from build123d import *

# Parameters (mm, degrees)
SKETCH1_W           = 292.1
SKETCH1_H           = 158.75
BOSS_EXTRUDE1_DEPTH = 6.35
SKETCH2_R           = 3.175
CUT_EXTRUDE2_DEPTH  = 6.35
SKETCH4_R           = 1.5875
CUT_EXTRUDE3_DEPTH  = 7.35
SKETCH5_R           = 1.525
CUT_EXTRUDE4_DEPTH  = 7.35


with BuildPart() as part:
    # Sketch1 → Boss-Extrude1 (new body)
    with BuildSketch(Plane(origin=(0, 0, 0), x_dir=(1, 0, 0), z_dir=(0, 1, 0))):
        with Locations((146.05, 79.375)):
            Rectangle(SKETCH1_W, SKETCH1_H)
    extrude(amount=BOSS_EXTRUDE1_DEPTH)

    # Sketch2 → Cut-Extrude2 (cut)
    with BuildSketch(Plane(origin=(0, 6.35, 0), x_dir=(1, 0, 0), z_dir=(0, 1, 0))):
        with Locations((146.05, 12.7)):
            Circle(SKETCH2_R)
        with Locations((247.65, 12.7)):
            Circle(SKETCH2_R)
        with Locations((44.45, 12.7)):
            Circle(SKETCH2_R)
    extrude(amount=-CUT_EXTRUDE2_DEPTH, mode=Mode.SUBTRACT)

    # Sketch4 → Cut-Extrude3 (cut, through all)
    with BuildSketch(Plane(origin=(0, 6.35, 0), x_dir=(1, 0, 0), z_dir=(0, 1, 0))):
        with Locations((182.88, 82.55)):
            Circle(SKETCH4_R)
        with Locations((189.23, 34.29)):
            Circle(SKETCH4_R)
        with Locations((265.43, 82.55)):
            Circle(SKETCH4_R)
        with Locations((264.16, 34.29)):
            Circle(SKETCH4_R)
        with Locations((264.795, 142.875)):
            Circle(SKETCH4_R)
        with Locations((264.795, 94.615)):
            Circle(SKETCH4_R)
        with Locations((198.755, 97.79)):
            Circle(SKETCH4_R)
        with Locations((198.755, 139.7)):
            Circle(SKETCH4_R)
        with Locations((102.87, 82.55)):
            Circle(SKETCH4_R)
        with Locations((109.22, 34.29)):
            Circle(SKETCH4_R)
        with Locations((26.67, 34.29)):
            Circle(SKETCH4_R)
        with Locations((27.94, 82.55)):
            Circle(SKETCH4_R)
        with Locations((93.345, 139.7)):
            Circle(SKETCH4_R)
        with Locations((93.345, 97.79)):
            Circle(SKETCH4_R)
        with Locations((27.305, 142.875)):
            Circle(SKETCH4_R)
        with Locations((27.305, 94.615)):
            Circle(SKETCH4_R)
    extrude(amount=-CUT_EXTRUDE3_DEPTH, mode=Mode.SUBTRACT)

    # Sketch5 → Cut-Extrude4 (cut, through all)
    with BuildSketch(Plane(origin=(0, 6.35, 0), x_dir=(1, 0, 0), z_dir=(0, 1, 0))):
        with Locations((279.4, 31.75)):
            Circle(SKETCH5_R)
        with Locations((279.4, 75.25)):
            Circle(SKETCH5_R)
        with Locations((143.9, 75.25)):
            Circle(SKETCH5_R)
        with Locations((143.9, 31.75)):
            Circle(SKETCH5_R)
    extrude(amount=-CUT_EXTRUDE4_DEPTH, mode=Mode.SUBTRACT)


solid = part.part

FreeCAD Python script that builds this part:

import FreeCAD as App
import Part
import Sketcher
from FreeCAD import Vector
Q = App.Units.Quantity

doc = App.newDocument("Part")
body = doc.addObject("PartDesign::Body", "Body")

# Sketch on XZ plane
sketch1 = doc.addObject("Sketcher::SketchObject", "Sketch")
body.addObject(sketch1)
sketch1.AttachmentSupport = (doc.XZ_Plane, [""])
sketch1.MapMode = "FlatFace"
sketch1.addGeometry(Part.LineSegment(Vector(0, -158.75, 0), Vector(0, 0, 0)), False)
sketch1.addGeometry(Part.LineSegment(Vector(0, 0, 0), Vector(292.1, 0, 0)), False)
sketch1.addGeometry(Part.LineSegment(Vector(292.1, 0, 0), Vector(292.1, -158.75, 0)), False)
sketch1.addGeometry(Part.LineSegment(Vector(292.1, -158.75, 0), Vector(0, -158.75, 0)), False)
sketch1.addConstraint(Sketcher.Constraint("Coincident", 0, 2, 1, 1))
sketch1.addConstraint(Sketcher.Constraint("Coincident", 1, 2, 2, 1))
sketch1.addConstraint(Sketcher.Constraint("Coincident", 2, 2, 3, 1))
sketch1.addConstraint(Sketcher.Constraint("Coincident", 3, 2, 0, 1))
sketch1.addConstraint(Sketcher.Constraint("Vertical", 0))
sketch1.addConstraint(Sketcher.Constraint("Horizontal", 1))
sketch1.addConstraint(Sketcher.Constraint("Vertical", 2))
sketch1.addConstraint(Sketcher.Constraint("Horizontal", 3))
sketch1.addConstraint(Sketcher.Constraint("Coincident", 0, 2, -1, 1))
sketch1.addConstraint(Sketcher.Constraint("DistanceX", 1, 1, 1, 2, Q("11.5 in")))
sketch1.addConstraint(Sketcher.Constraint("DistanceY", 0, 1, 0, 2, Q("6.25 in")))
pad1 = doc.addObject("PartDesign::Pad", "Pad")
body.addObject(pad1)
pad1.Profile = sketch1
pad1.Length = Q("0.25 in")
pad1.Reversed = True

# Sketch on XZ plane
sketch2 = doc.addObject("Sketcher::SketchObject", "Sketch001")
body.addObject(sketch2)
sketch2.AttachmentSupport = (doc.XZ_Plane, [""])
sketch2.MapMode = "FlatFace"
sketch2.AttachmentOffset = App.Placement(Vector(0, 0, -0.25 * 25.4), App.Rotation())
sketch2.addGeometry(Part.Circle(Vector(146.05, -12.7, 0), Vector(0, 0, 1), 3.175), False)
sketch2.addGeometry(Part.Circle(Vector(247.65, -12.7, 0), Vector(0, 0, 1), 3.175), False)
sketch2.addGeometry(Part.Circle(Vector(44.45, -12.7, 0), Vector(0, 0, 1), 3.175), False)
sketch2.addConstraint(Sketcher.Constraint("Equal", 0, 1))
sketch2.addConstraint(Sketcher.Constraint("Equal", 1, 2))
sketch2.addConstraint(Sketcher.Constraint("Horizontal", 0, 3, 1, 3))
sketch2.addConstraint(Sketcher.Constraint("Horizontal", 1, 3, 2, 3))
sketch2.addConstraint(Sketcher.Constraint("Diameter", 0, Q("0.25 in")))
sketch2.addConstraint(Sketcher.Constraint("DistanceX", 0, 3, 1, 3, Q("4 in")))
sketch2.addConstraint(Sketcher.Constraint("DistanceX", 2, 3, 0, 3, Q("4 in")))
sketch2.addConstraint(Sketcher.Constraint("DistanceY", 0, 3, -1, 1, Q("0.5 in")))
sketch2.addConstraint(Sketcher.Constraint("DistanceX", -1, 1, 0, 3, Q("5.75 in")))
pocket1 = doc.addObject("PartDesign::Pocket", "Pocket")
body.addObject(pocket1)
pocket1.Profile = sketch2
pocket1.Length = Q("0.25 in")
pocket1.Reversed = True

# Sketch on XZ plane
sketch3 = doc.addObject("Sketcher::SketchObject", "Sketch002")
body.addObject(sketch3)
sketch3.AttachmentSupport = (doc.XZ_Plane, [""])
sketch3.MapMode = "FlatFace"
sketch3.AttachmentOffset = App.Placement(Vector(0, 0, -0.25 * 25.4), App.Rotation())
sketch3.addGeometry(Part.Circle(Vector(182.88, -82.55, 0), Vector(0, 0, 1), 1.5875), False)
sketch3.addGeometry(Part.Circle(Vector(189.23, -34.29, 0), Vector(0, 0, 1), 1.5875), False)
sketch3.addGeometry(Part.Circle(Vector(265.43, -82.55, 0), Vector(0, 0, 1), 1.5875), False)
sketch3.addGeometry(Part.Circle(Vector(264.16, -34.29, 0), Vector(0, 0, 1), 1.5875), False)
sketch3.addGeometry(Part.Circle(Vector(264.795, -142.875, 0), Vector(0, 0, 1), 1.5875), False)
sketch3.addGeometry(Part.Circle(Vector(264.795, -94.615, 0), Vector(0, 0, 1), 1.5875), False)
sketch3.addGeometry(Part.Circle(Vector(198.755, -97.79, 0), Vector(0, 0, 1), 1.5875), False)
sketch3.addGeometry(Part.Circle(Vector(198.755, -139.7, 0), Vector(0, 0, 1), 1.5875), False)
sketch3.addGeometry(Part.Circle(Vector(102.87, -82.55, 0), Vector(0, 0, 1), 1.5875), False)
sketch3.addGeometry(Part.Circle(Vector(109.22, -34.29, 0), Vector(0, 0, 1), 1.5875), False)
sketch3.addGeometry(Part.Circle(Vector(26.67, -34.29, 0), Vector(0, 0, 1), 1.5875), False)
sketch3.addGeometry(Part.Circle(Vector(27.94, -82.55, 0), Vector(0, 0, 1), 1.5875), False)
sketch3.addGeometry(Part.Circle(Vector(93.345, -139.7, 0), Vector(0, 0, 1), 1.5875), False)
sketch3.addGeometry(Part.Circle(Vector(93.345, -97.79, 0), Vector(0, 0, 1), 1.5875), False)
sketch3.addGeometry(Part.Circle(Vector(27.305, -142.875, 0), Vector(0, 0, 1), 1.5875), False)
sketch3.addGeometry(Part.Circle(Vector(27.305, -94.615, 0), Vector(0, 0, 1), 1.5875), False)
sketch3.addConstraint(Sketcher.Constraint("Equal", 0, 1))
sketch3.addConstraint(Sketcher.Constraint("Equal", 1, 2))
sketch3.addConstraint(Sketcher.Constraint("Equal", 2, 3))
sketch3.addConstraint(Sketcher.Constraint("Equal", 3, 4))
sketch3.addConstraint(Sketcher.Constraint("Equal", 4, 5))
sketch3.addConstraint(Sketcher.Constraint("Equal", 5, 6))
sketch3.addConstraint(Sketcher.Constraint("Equal", 6, 7))
sketch3.addConstraint(Sketcher.Constraint("Equal", 7, 8))
sketch3.addConstraint(Sketcher.Constraint("Equal", 8, 9))
sketch3.addConstraint(Sketcher.Constraint("Equal", 9, 10))
sketch3.addConstraint(Sketcher.Constraint("Equal", 10, 11))
sketch3.addConstraint(Sketcher.Constraint("Equal", 11, 12))
sketch3.addConstraint(Sketcher.Constraint("Equal", 12, 13))
sketch3.addConstraint(Sketcher.Constraint("Equal", 13, 14))
sketch3.addConstraint(Sketcher.Constraint("Equal", 14, 15))
sketch3.addConstraint(Sketcher.Constraint("Horizontal", 0, 3, 2, 3))
sketch3.addConstraint(Sketcher.Constraint("Horizontal", 1, 3, 3, 3))
sketch3.addConstraint(Sketcher.Constraint("Horizontal", 2, 3, 8, 3))
sketch3.addConstraint(Sketcher.Constraint("Horizontal", 3, 3, 9, 3))
sketch3.addConstraint(Sketcher.Constraint("Horizontal", 9, 3, 10, 3))
sketch3.addConstraint(Sketcher.Constraint("Horizontal", 8, 3, 11, 3))
sketch3.addConstraint(Sketcher.Constraint("Horizontal", 7, 3, 12, 3))
sketch3.addConstraint(Sketcher.Constraint("Horizontal", 6, 3, 13, 3))
sketch3.addConstraint(Sketcher.Constraint("Horizontal", 4, 3, 14, 3))
sketch3.addConstraint(Sketcher.Constraint("Horizontal", 5, 3, 15, 3))
sketch3.addConstraint(Sketcher.Constraint("Vertical", 4, 3, 5, 3))
sketch3.addConstraint(Sketcher.Constraint("Vertical", 6, 3, 7, 3))
sketch3.addConstraint(Sketcher.Constraint("Vertical", 12, 3, 13, 3))
sketch3.addConstraint(Sketcher.Constraint("Vertical", 14, 3, 15, 3))
sketch3.addConstraint(Sketcher.Constraint("Diameter", 0, Q("0.125 in")))
sketch3.addConstraint(Sketcher.Constraint("DistanceX", 1, 3, 2, 3, Q("3 in")))
sketch3.addConstraint(Sketcher.Constraint("DistanceX", 10, 3, 8, 3, Q("3 in")))
sketch3.addConstraint(Sketcher.Constraint("DistanceX", -1, 1, 0, 3, Q("7.2 in")))
sketch3.addConstraint(Sketcher.Constraint("DistanceX", -1, 1, 3, 3, Q("10.4 in")))
sketch3.addConstraint(Sketcher.Constraint("DistanceY", 7, 3, -1, 1, Q("5.5 in")))
sketch3.addConstraint(Sketcher.Constraint("DistanceX", -1, 1, 9, 3, Q("4.3 in")))
sketch3.addConstraint(Sketcher.Constraint("DistanceX", -1, 1, 11, 3, Q("1.1 in")))
sketch3.addConstraint(Sketcher.Constraint("DistanceY", 0, 3, 1, 3, Q("1.9 in")))
sketch3.addConstraint(Sketcher.Constraint("DistanceY", 4, 3, 5, 3, Q("1.9 in")))
sketch3.addConstraint(Sketcher.Constraint("DistanceY", 6, 3, 0, 3, Q("0.6 in")))
sketch3.addConstraint(Sketcher.Constraint("DistanceX", 6, 3, 5, 3, Q("2.6 in")))
sketch3.addConstraint(Sketcher.Constraint("DistanceX", 8, 3, 1, 3, Q("3.4 in")))
sketch3.addConstraint(Sketcher.Constraint("DistanceX", 14, 3, 12, 3, Q("2.6 in")))
sketch3.addConstraint(Sketcher.Constraint("DistanceY", 0, 3, -1, 1, Q("3.25 in")))
sketch3.addConstraint(Sketcher.Constraint("DistanceX", -1, 1, 1, 3, Q("7.45 in")))
sketch3.addConstraint(Sketcher.Constraint("DistanceX", 12, 3, 7, 3, Q("4.15 in")))
sketch3.addConstraint(Sketcher.Constraint("DistanceX", -1, 1, 4, 3, Q("10.425 in")))
sketch3.addConstraint(Sketcher.Constraint("DistanceY", 4, 3, -1, 1, Q("5.625 in")))
pocket2 = doc.addObject("PartDesign::Pocket", "Pocket001")
body.addObject(pocket2)
pocket2.Profile = sketch3
pocket2.Type = "ThroughAll"
pocket2.Reversed = True

# Sketch on XZ plane
sketch4 = doc.addObject("Sketcher::SketchObject", "Sketch003")
body.addObject(sketch4)
sketch4.AttachmentSupport = (doc.XZ_Plane, [""])
sketch4.MapMode = "FlatFace"
sketch4.AttachmentOffset = App.Placement(Vector(0, 0, -0.25 * 25.4), App.Rotation())
sketch4.addGeometry(Part.Circle(Vector(279.4, -31.75, 0), Vector(0, 0, 1), 1.525), False)
sketch4.addGeometry(Part.Circle(Vector(279.4, -75.25, 0), Vector(0, 0, 1), 1.525), False)
sketch4.addGeometry(Part.Circle(Vector(143.9, -75.25, 0), Vector(0, 0, 1), 1.525), False)
sketch4.addGeometry(Part.Circle(Vector(143.9, -31.75, 0), Vector(0, 0, 1), 1.525), False)
sketch4.addConstraint(Sketcher.Constraint("Equal", 0, 1))
sketch4.addConstraint(Sketcher.Constraint("Equal", 1, 2))
sketch4.addConstraint(Sketcher.Constraint("Equal", 2, 3))
sketch4.addConstraint(Sketcher.Constraint("Horizontal", 1, 3, 2, 3))
sketch4.addConstraint(Sketcher.Constraint("Horizontal", 0, 3, 3, 3))
sketch4.addConstraint(Sketcher.Constraint("Vertical", 0, 3, 1, 3))
sketch4.addConstraint(Sketcher.Constraint("Vertical", 2, 3, 3, 3))
sketch4.addConstraint(Sketcher.Constraint("DistanceX", -1, 1, 0, 3, Q("11 in")))
sketch4.addConstraint(Sketcher.Constraint("Diameter", 0, 3.05))
sketch4.addConstraint(Sketcher.Constraint("DistanceY", 0, 3, -1, 1, Q("1.25 in")))
sketch4.addConstraint(Sketcher.Constraint("DistanceY", 1, 3, -1, 1, 75.25))
sketch4.addConstraint(Sketcher.Constraint("DistanceX", -1, 1, 2, 3, 143.9))
pocket3 = doc.addObject("PartDesign::Pocket", "Pocket002")
body.addObject(pocket3)
pocket3.Profile = sketch4
pocket3.Type = "ThroughAll"
pocket3.Reversed = True

doc.recompute()
